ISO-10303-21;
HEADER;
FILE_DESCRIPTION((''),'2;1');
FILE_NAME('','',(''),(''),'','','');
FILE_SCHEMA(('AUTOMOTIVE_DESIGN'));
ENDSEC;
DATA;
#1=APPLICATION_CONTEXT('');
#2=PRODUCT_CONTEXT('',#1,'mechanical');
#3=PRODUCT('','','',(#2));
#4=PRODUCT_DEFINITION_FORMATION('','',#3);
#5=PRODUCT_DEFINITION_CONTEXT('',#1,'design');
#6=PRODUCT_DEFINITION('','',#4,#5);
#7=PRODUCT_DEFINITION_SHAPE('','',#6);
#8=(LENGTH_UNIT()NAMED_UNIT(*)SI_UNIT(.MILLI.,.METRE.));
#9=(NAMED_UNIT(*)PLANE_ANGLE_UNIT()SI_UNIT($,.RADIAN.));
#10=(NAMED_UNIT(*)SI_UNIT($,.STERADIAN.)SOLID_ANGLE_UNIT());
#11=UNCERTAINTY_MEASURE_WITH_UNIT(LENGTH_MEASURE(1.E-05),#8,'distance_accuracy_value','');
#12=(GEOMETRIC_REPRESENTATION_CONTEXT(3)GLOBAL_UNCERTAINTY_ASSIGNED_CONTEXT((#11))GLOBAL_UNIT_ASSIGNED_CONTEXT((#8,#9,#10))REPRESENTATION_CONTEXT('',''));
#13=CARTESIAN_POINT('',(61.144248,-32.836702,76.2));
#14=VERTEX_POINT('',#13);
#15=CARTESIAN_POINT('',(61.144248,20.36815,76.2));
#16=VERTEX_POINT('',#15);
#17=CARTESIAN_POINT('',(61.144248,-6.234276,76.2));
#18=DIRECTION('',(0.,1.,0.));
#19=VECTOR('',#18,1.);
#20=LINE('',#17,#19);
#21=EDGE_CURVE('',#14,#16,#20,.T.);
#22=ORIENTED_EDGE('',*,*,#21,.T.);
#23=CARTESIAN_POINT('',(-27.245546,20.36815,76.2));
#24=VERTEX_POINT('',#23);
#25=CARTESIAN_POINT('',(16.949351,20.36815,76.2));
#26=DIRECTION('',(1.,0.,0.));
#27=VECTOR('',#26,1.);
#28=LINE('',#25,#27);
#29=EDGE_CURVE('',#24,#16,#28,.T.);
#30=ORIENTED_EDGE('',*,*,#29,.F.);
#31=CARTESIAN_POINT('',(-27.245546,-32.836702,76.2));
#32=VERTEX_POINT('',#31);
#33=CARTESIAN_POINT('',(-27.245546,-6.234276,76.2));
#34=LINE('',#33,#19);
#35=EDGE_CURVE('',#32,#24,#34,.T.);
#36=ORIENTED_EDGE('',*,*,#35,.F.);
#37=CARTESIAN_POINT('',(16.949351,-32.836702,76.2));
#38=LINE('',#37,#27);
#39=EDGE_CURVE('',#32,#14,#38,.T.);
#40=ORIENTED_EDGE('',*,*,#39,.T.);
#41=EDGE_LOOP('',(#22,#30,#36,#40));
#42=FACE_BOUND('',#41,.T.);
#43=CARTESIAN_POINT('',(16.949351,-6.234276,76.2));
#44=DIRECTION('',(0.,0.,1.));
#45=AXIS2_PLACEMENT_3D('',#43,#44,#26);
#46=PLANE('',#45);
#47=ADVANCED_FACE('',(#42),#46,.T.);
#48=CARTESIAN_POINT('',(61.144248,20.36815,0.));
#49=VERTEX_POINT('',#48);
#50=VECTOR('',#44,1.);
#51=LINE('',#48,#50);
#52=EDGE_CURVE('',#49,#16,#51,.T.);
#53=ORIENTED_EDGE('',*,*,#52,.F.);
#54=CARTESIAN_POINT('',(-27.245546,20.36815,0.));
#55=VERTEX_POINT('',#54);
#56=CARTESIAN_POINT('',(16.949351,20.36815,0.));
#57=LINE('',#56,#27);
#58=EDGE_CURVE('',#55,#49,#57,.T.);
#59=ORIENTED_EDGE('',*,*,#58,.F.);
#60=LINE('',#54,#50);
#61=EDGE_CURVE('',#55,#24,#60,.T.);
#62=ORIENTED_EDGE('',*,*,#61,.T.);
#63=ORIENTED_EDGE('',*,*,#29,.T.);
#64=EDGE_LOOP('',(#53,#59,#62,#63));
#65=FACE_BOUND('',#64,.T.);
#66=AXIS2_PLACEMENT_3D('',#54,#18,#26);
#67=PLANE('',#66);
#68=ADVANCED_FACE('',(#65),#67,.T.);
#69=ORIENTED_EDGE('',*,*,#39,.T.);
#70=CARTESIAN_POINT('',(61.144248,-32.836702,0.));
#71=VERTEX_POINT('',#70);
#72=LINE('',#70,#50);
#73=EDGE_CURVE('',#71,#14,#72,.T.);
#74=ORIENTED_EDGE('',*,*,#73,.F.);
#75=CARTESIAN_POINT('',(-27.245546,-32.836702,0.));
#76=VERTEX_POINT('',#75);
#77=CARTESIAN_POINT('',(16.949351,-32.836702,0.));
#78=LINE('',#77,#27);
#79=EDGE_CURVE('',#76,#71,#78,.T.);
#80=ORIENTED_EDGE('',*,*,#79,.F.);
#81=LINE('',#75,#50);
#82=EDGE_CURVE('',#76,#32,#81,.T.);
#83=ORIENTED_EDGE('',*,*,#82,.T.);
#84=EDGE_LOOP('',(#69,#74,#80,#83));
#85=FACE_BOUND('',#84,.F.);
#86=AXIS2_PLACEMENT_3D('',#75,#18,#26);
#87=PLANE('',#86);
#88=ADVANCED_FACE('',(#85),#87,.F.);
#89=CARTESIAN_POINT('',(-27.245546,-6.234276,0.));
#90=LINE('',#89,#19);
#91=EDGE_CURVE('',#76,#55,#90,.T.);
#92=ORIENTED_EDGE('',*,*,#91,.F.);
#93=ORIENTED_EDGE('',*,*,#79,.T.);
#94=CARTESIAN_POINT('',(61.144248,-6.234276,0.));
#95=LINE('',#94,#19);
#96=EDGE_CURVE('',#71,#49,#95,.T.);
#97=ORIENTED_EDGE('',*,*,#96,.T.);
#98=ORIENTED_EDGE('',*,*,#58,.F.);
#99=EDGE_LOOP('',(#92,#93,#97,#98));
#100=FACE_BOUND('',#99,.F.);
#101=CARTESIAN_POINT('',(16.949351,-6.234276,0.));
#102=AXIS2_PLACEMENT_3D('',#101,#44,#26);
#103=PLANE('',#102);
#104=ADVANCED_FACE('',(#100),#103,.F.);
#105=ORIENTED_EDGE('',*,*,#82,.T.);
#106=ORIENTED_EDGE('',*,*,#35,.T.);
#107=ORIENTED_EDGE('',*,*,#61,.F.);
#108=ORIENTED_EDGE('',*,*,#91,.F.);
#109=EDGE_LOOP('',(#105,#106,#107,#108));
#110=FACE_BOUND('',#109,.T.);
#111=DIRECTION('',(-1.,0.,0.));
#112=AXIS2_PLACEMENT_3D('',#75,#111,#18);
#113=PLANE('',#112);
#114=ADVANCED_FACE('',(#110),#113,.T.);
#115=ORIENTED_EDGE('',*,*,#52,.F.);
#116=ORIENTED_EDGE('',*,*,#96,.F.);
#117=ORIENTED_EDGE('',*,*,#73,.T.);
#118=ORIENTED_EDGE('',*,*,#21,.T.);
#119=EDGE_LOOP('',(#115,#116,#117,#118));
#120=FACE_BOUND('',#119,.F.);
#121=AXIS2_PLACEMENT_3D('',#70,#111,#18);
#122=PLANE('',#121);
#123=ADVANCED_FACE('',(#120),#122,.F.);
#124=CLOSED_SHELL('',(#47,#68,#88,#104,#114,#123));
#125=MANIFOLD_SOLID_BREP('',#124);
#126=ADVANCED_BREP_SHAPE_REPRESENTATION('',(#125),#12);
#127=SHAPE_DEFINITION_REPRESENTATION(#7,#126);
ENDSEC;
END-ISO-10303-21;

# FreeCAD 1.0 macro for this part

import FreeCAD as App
import Part
import Sketcher

V = App.Vector
Q = App.Units.Quantity

doc = App.newDocument("Part")
body = doc.addObject("PartDesign::Body", "Body")

sketch1 = body.newObject("Sketcher::SketchObject", "Sketch")
sketch1.AttachmentSupport = (doc.getObject("XY_Plane"), [""])
sketch1.MapMode = "FlatFace"
sketch1.addGeometry(Part.LineSegment(V(-27.245546, 20.36815, 0), V(-27.245546, -32.836702, 0)), False)
sketch1.addGeometry(Part.LineSegment(V(-27.245546, -32.836702, 0), V(61.144248, -32.836702, 0)), False)
sketch1.addGeometry(Part.LineSegment(V(61.144248, -32.836702, 0), V(61.144248, 20.36815, 0)), False)
sketch1.addGeometry(Part.LineSegment(V(61.144248, 20.36815, 0), V(-27.245546, 20.36815, 0)), False)
sketch1.addConstraint(Sketcher.Constraint("Coincident", 0, 2, 1, 1))
sketch1.addConstraint(Sketcher.Constraint("Coincident", 1, 2, 2, 1))
sketch1.addConstraint(Sketcher.Constraint("Coincident", 2, 2, 3, 1))
sketch1.addConstraint(Sketcher.Constraint("Coincident", 3, 2, 0, 1))
sketch1.addConstraint(Sketcher.Constraint("Vertical", 0))
sketch1.addConstraint(Sketcher.Constraint("Horizontal", 1))
sketch1.addConstraint(Sketcher.Constraint("Vertical", 2))
sketch1.addConstraint(Sketcher.Constraint("Horizontal", 3))
sketch1.addConstraint(Sketcher.Constraint("DistanceX", 1, 1, 1, 2, Q("88.389794 mm")))
sketch1.addConstraint(Sketcher.Constraint("DistanceY", 0, 2, 0, 1, Q("53.204852 mm")))
sketch1.addConstraint(Sketcher.Constraint("DistanceY", -1, 1, 2, 2, Q("20.36815 mm")))
sketch1.addConstraint(Sketcher.Constraint("DistanceX", 0, 2, -1, 1, Q("27.245546 mm")))
pad1 = body.newObject("PartDesign::Pad", "Pad")
pad1.Profile = sketch1
pad1.Length = Q("3 in")

doc.recompute()
